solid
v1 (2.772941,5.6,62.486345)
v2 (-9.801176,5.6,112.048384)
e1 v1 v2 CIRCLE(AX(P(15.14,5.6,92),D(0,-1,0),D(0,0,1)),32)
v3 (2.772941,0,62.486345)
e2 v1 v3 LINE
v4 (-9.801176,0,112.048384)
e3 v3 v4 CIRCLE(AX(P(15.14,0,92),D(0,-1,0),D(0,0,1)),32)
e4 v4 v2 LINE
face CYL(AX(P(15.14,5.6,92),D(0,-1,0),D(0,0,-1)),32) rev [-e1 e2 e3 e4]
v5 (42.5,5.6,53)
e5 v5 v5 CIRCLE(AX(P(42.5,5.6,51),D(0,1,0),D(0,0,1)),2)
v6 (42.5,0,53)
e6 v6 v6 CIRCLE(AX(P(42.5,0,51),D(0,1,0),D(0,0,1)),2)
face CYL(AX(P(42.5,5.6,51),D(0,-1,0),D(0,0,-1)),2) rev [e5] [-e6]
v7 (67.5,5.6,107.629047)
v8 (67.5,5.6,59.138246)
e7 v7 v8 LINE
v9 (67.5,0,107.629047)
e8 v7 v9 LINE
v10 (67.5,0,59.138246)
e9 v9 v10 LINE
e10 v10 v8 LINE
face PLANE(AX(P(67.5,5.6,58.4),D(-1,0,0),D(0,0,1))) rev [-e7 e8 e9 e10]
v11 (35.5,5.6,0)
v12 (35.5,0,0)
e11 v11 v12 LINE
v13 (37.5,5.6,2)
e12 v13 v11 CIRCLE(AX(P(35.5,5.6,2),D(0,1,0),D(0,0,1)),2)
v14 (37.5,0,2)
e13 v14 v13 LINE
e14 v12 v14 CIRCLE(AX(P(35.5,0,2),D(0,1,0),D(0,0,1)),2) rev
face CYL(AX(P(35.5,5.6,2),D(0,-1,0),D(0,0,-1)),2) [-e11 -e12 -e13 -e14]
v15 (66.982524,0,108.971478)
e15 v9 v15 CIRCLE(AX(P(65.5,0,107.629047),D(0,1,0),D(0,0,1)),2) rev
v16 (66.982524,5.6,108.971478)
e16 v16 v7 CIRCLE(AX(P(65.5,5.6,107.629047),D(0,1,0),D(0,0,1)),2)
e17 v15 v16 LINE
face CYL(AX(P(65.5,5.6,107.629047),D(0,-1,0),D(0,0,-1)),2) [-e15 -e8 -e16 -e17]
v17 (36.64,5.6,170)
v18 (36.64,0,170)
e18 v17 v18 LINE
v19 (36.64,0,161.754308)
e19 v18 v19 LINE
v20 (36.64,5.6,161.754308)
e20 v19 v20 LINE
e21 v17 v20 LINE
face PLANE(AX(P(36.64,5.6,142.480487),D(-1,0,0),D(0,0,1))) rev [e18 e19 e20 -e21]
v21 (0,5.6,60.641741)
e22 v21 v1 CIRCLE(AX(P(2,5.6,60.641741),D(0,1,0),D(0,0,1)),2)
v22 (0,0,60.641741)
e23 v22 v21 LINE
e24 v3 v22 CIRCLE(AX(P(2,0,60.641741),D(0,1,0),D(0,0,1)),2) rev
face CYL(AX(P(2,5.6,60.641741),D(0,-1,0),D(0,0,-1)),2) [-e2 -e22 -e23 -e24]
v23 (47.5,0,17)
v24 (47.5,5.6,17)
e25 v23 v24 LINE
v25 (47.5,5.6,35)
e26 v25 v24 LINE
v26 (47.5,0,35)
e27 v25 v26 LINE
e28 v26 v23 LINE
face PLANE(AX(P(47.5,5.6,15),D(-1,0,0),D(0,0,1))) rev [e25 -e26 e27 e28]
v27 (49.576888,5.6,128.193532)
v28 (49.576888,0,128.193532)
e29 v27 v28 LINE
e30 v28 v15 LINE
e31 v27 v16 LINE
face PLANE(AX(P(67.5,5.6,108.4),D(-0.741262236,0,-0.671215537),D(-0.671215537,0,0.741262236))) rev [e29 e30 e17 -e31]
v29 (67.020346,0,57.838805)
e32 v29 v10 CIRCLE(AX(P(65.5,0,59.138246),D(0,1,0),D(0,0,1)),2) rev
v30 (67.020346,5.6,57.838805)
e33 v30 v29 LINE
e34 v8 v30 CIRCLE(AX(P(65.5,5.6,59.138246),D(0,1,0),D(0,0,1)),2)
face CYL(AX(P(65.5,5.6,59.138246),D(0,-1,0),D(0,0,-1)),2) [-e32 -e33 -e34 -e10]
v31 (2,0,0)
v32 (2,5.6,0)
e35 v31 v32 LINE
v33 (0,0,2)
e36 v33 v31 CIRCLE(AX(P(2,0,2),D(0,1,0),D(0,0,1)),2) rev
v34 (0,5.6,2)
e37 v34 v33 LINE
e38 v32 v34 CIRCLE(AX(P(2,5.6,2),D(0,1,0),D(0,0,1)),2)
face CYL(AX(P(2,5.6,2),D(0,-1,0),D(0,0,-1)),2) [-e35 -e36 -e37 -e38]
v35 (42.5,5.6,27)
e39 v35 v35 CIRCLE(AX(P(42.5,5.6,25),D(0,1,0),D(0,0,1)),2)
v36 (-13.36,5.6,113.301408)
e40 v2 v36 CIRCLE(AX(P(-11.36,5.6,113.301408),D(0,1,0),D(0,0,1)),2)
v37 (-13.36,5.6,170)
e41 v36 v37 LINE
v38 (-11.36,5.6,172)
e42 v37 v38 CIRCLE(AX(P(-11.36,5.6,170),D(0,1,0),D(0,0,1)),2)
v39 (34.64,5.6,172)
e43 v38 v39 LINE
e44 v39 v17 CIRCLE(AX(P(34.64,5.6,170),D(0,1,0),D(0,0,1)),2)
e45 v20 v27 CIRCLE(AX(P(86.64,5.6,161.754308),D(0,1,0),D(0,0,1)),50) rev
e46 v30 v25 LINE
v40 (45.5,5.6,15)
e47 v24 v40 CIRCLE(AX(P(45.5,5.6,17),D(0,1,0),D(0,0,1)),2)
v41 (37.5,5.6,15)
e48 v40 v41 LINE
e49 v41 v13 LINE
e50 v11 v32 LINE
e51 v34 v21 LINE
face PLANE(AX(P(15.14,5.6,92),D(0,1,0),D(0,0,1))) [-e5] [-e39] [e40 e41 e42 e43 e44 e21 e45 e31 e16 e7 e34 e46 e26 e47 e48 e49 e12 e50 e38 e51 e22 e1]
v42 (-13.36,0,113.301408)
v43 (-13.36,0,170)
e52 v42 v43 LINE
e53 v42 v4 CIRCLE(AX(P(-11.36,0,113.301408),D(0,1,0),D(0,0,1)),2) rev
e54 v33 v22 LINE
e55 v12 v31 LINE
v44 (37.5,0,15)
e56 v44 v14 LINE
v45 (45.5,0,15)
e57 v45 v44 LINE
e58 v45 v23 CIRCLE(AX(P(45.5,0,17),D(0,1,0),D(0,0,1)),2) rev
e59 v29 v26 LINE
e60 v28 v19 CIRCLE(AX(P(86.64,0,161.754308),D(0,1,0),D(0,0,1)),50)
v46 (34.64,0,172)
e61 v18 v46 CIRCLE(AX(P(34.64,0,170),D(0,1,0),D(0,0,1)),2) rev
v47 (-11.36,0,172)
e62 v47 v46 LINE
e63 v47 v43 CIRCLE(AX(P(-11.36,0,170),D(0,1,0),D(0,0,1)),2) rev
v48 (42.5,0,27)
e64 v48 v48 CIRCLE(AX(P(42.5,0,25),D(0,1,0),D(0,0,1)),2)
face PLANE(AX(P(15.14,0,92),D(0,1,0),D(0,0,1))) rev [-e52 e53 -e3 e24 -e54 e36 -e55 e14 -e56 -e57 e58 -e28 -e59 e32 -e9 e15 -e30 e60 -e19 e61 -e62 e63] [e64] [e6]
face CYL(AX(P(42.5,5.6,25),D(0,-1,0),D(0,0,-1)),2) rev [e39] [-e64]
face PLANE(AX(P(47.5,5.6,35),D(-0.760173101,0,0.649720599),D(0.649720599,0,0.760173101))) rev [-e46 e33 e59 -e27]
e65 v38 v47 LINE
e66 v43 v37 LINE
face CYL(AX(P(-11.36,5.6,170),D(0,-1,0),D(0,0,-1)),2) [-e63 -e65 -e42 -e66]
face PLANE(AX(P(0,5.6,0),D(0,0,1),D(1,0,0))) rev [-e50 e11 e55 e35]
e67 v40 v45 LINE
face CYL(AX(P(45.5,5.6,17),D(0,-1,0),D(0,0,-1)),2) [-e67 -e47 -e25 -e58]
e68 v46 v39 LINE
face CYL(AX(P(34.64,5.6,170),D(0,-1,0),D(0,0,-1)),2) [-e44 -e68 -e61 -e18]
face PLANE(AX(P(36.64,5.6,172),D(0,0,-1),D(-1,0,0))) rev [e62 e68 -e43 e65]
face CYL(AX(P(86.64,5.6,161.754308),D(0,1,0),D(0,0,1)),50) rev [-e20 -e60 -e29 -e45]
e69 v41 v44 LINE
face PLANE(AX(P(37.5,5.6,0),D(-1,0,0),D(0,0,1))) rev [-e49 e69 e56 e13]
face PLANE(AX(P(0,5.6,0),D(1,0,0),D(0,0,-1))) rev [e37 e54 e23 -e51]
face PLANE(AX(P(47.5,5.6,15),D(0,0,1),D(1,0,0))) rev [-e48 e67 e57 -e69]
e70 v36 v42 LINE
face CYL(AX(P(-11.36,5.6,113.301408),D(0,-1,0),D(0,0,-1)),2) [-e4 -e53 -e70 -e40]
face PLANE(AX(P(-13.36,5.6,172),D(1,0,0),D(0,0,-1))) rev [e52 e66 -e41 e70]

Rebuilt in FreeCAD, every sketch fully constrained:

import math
import FreeCAD as App
import Part
import Sketcher


def edges_at(feature, points):
    """Names of the edges that pass closest to the given points."""
    edges = feature.Shape.Edges
    near = lambda p: min(range(len(edges)), key=lambda i: edges[i].distToShape(Part.Vertex(*p))[0])
    return sorted({f"Edge{near(p) + 1}" for p in points})

doc = App.newDocument("Part")
body = doc.addObject("PartDesign::Body", "Body")

sketch1 = body.newObject("Sketcher::SketchObject", "Sketch")
sketch1.AttachmentSupport = (doc.getObject("XZ_Plane"), [""])
sketch1.MapMode = "FlatFace"
sketch1.addGeometry([
    Part.LineSegment(App.Vector(67.5, 58.4, 0), App.Vector(47.5, 35, 0)),
    Part.LineSegment(App.Vector(47.5, 35, 0), App.Vector(47.5, 15, 0)),
    Part.LineSegment(App.Vector(47.5, 15, 0), App.Vector(37.5, 15, 0)),
    Part.LineSegment(App.Vector(37.5, 15, 0), App.Vector(37.5, 0, 0)),
    Part.LineSegment(App.Vector(37.5, 0, 0), App.Vector(0, 0, 0)),
    Part.LineSegment(App.Vector(0, 0, 0), App.Vector(0, 63.8, 0)),
    Part.ArcOfCircle(Part.Circle(App.Vector(15.1, 92, 0), App.Vector(0, 0, 1), 32), math.radians(-118), math.radians(153)),
    Part.LineSegment(App.Vector(-13.4, 106.6, 0), App.Vector(-13.4, 172, 0)),
    Part.LineSegment(App.Vector(-13.4, 172, 0), App.Vector(36.6, 172, 0)),
    Part.LineSegment(App.Vector(36.6, 172, 0), App.Vector(36.6, 142.5, 0)),
    Part.LineSegment(App.Vector(36.6, 142.5, 0), App.Vector(67.5, 108.4, 0)),
    Part.LineSegment(App.Vector(67.5, 108.4, 0), App.Vector(67.5, 58.4, 0)),
    Part.Circle(App.Vector(42.5, 51, 0), App.Vector(0, 0, 1), 2),
    Part.Circle(App.Vector(42.5, 25, 0), App.Vector(0, 0, 1), 2),
], False)
sketch1.addConstraint([
    Sketcher.Constraint("Coincident", 0, 2, 1, 1),
    Sketcher.Constraint("Coincident", 1, 2, 2, 1),
    Sketcher.Constraint("Coincident", 2, 2, 3, 1),
    Sketcher.Constraint("Coincident", 3, 2, 4, 1),
    Sketcher.Constraint("Coincident", 4, 2, 5, 1),
    Sketcher.Constraint("Coincident", 5, 2, 6, 1),
    Sketcher.Constraint("Coincident", 6, 2, 7, 1),
    Sketcher.Constraint("Coincident", 7, 2, 8, 1),
    Sketcher.Constraint("Coincident", 8, 2, 9, 1),
    Sketcher.Constraint("Coincident", 9, 2, 10, 1),
    Sketcher.Constraint("Coincident", 10, 2, 11, 1),
    Sketcher.Constraint("Coincident", 11, 2, 0, 1),
    Sketcher.Constraint("Vertical", 1),
    Sketcher.Constraint("Horizontal", 2),
    Sketcher.Constraint("Vertical", 3),
    Sketcher.Constraint("Horizontal", 4),
    Sketcher.Constraint("Vertical", 5),
    Sketcher.Constraint("Vertical", 7),
    Sketcher.Constraint("Horizontal", 8),
    Sketcher.Constraint("Vertical", 9),
    Sketcher.Constraint("Vertical", 11),
    Sketcher.Constraint("Coincident", 4, 2, -1, 1),
    Sketcher.Constraint("Equal", 12, 13),
    Sketcher.Constraint("Vertical", 12, 3, 13, 3),
    Sketcher.Constraint("Equal", 8, 11),
    Sketcher.Constraint("Diameter", 12, 4.0),
    Sketcher.Constraint("Radius", 6, 32.0),
    Sketcher.Constraint("DistanceX", 2, 2, 2, 1, 10.0),
    Sketcher.Constraint("DistanceX", 8, 1, 8, 2, 50.0),
    Sketcher.Constraint("DistanceY", 1, 2, 1, 1, 20.0),
    Sketcher.Constraint("DistanceY", 3, 2, 3, 1, 15.0),
    Sketcher.Constraint("DistanceX", 4, 2, 4, 1, 37.5),
    Sketcher.Constraint("DistanceY", -1, 1, 6, 3, 92.0),
    Sketcher.Constraint("DistanceY", -1, 1, 12, 3, 51.0),
    Sketcher.Constraint("DistanceY", -1, 1, 13, 3, 25.0),
    Sketcher.Constraint("DistanceY", -1, 1, 7, 2, 172.0),
    Sketcher.Constraint("DistanceX", 13, 3, 0, 2, 5.0),
    Sketcher.Constraint("DistanceX", 12, 3, 10, 2, 25.0),
    Sketcher.Constraint("DistanceY", -1, 1, 10, 2, 108.4),
    Sketcher.Constraint("DistanceX", 6, 2, 6, 3, 28.5),
    Sketcher.Constraint("DistanceX", -1, 1, 6, 3, 15.14),
    Sketcher.Constraint("Distance", 10, 45.97629),
])
pad1 = body.newObject("PartDesign::Pad", "Pad")
pad1.Profile = sketch1
pad1.Length = 5.6
pad1.Reversed = True
doc.recompute()

fillet = body.newObject("PartDesign::Fillet", "Fillet")
fillet.Base = (pad1, edges_at(pad1, [(-13.36, 2.8, 106.552), (0, 2.8, 63.808)]))
fillet.Radius = 2
doc.recompute()

fillet2 = body.newObject("PartDesign::Fillet", "Fillet001")
fillet2.Base = (fillet, edges_at(fillet, [
    (0, 2.8, 0),
    (37.5, 2.8, 0),
    (47.5, 2.8, 15),
    (67.5, 2.8, 58.4),
    (67.5, 2.8, 108.4),
    (36.64, 2.8, 172),
    (-13.36, 2.8, 172),
]))
fillet2.Radius = 2
doc.recompute()

fillet3 = body.newObject("PartDesign::Fillet", "Fillet002")
fillet3.Base = (fillet2, edges_at(fillet2, [(36.64, 2.8, 142.48)]))
fillet3.Radius = 50

doc.recompute()
